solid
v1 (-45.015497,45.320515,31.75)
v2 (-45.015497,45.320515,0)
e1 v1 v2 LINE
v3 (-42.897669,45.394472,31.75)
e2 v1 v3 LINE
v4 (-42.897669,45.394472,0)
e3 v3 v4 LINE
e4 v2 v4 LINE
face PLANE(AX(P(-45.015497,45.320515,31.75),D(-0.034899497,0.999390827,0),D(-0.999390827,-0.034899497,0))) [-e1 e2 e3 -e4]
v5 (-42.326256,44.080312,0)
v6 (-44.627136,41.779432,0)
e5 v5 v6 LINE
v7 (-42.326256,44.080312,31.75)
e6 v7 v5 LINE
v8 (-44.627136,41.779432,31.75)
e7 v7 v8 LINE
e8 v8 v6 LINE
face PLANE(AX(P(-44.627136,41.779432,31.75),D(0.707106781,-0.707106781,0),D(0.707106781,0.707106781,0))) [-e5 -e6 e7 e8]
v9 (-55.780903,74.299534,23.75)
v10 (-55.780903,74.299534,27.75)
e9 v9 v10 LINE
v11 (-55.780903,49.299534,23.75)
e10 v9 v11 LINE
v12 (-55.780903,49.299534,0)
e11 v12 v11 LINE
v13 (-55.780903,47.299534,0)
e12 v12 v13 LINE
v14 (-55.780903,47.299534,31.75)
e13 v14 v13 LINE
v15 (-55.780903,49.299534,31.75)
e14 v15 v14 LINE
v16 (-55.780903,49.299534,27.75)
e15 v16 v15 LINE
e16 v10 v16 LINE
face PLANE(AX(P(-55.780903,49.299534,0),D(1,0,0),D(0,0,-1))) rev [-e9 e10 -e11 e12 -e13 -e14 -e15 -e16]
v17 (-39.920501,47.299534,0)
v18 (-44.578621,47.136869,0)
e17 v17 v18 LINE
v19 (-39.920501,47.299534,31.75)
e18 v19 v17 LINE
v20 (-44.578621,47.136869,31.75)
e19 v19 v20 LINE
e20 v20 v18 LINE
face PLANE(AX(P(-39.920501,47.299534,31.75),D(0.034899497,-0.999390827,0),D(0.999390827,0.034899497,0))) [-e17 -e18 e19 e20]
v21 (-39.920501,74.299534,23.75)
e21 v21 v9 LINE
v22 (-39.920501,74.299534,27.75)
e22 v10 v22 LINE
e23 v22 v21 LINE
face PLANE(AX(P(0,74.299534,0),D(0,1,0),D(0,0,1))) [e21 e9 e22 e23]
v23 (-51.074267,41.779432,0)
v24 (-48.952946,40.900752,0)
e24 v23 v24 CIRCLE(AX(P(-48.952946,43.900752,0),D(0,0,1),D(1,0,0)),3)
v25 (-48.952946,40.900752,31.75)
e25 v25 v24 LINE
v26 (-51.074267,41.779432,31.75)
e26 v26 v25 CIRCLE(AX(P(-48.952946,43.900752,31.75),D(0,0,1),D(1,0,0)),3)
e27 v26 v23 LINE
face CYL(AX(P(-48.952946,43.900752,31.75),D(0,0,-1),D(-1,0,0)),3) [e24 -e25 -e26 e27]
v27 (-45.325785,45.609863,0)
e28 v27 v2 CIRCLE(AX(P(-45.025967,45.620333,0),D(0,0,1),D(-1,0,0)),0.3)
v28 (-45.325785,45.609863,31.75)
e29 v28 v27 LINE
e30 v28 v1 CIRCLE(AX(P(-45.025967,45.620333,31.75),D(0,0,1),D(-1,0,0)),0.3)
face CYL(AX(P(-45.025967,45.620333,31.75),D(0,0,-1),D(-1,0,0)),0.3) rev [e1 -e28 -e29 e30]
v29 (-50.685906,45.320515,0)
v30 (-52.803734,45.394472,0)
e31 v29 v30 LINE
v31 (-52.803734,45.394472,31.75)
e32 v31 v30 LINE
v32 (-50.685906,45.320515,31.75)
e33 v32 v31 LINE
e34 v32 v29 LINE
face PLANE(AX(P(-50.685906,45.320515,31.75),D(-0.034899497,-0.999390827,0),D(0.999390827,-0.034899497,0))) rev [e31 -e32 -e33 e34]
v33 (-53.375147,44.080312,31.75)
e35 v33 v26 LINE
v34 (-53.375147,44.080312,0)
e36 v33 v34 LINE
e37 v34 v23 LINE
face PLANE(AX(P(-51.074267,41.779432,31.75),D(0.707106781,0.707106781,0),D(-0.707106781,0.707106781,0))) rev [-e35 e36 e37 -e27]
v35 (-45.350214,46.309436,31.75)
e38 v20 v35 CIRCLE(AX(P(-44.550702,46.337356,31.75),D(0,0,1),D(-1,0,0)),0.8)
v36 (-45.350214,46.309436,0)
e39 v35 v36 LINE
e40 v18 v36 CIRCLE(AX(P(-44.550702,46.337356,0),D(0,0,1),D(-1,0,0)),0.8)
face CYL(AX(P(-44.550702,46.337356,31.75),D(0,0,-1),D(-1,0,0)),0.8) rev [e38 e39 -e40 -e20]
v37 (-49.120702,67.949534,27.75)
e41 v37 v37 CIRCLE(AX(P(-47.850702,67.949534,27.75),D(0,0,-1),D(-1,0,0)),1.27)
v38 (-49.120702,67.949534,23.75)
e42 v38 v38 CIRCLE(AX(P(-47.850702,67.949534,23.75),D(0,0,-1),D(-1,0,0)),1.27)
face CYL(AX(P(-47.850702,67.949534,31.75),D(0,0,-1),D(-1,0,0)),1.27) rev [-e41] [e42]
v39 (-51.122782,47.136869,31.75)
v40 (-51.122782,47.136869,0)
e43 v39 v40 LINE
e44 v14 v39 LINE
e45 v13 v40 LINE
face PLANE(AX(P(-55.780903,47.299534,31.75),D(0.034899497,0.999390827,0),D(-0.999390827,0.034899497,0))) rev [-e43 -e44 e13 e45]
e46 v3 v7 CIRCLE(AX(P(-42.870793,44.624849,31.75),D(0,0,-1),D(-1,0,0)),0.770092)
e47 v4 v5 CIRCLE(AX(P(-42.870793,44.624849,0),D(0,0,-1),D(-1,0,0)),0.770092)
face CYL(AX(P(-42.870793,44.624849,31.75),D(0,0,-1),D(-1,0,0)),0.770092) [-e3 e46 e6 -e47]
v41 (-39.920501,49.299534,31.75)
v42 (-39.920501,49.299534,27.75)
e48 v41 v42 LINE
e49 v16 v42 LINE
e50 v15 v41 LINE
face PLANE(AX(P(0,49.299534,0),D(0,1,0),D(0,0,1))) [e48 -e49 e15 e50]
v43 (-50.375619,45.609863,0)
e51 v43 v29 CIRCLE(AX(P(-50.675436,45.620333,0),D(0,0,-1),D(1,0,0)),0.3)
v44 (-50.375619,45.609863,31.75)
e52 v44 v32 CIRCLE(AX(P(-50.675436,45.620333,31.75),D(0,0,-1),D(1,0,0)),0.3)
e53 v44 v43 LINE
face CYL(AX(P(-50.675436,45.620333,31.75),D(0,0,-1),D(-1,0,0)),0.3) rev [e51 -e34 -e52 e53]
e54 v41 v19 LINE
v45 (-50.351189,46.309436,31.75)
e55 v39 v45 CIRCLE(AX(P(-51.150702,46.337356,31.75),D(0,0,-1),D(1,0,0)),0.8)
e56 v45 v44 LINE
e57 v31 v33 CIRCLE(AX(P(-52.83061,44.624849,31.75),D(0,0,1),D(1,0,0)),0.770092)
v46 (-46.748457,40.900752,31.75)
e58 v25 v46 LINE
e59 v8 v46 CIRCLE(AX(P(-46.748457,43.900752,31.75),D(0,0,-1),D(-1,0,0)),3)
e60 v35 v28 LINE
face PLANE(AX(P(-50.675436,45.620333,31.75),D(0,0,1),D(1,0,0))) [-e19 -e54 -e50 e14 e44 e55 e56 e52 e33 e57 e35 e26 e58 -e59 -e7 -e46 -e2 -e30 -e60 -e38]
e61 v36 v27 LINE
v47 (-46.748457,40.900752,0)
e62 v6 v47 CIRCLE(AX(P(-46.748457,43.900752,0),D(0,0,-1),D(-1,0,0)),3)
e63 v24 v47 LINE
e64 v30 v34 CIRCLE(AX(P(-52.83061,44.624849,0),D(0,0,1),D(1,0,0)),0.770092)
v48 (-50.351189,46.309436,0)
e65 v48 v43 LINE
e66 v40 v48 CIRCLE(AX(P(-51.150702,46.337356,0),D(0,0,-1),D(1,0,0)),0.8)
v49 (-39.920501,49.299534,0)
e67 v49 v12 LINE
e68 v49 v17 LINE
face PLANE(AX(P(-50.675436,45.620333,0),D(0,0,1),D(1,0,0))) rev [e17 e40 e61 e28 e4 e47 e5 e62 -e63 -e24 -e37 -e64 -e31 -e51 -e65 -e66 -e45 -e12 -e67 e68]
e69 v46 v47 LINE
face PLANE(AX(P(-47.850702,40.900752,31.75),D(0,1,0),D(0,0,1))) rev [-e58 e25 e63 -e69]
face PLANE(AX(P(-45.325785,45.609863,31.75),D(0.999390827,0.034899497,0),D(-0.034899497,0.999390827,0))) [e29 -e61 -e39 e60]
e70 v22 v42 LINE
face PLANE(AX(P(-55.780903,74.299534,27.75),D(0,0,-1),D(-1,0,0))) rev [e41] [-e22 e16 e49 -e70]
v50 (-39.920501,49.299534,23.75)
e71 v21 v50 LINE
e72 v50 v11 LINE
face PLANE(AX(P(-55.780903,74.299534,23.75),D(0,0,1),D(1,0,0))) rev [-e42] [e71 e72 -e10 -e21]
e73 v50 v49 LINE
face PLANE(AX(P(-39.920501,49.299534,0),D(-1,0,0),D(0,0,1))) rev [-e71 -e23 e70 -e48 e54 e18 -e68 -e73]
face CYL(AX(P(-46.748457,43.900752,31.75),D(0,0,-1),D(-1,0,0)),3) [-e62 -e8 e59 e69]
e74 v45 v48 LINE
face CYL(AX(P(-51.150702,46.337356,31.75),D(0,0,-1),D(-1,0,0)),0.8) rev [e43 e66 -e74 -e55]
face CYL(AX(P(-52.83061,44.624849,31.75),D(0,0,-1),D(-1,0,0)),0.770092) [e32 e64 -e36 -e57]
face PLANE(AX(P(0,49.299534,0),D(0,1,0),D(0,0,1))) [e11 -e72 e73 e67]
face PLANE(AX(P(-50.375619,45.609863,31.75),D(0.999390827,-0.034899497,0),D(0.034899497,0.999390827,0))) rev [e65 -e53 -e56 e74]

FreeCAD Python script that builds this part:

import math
import FreeCAD as App
import Part
import Sketcher
Q = App.Units.Quantity


def add_polygon(sketch, points):
    """Adds a closed chain of lines whose ends are joined by coincident constraints."""
    first, n = sketch.GeometryCount, len(points)
    for a, b in zip(points, points[1:] + points[:1]):
        sketch.addGeometry(Part.LineSegment(App.Vector(*a, 0), App.Vector(*b, 0)), False)
    for i in range(n):
        sketch.addConstraint(Sketcher.Constraint("Coincident", first + i, 2, first + (i + 1) % n, 1))

doc = App.newDocument("Part")
body = doc.addObject("PartDesign::Body", "Body")

# Sketch on XY plane
sketch1 = body.newObject("Sketcher::SketchObject", "Sketch")
sketch1.AttachmentSupport = (doc.getObject("XY_Plane"), [""])
sketch1.MapMode = "FlatFace"
sketch1.addGeometry([
    Part.LineSegment(App.Vector(-50.35, 46.31, 0), App.Vector(-50.38, 45.61, 0)),  # 0
    Part.ArcOfCircle(Part.Circle(App.Vector(-50.68, 45.62, 0), App.Vector(0, 0, 1), 0.3), math.radians(-92), math.radians(-2)),  # 1
    Part.LineSegment(App.Vector(-50.69, 45.32, 0), App.Vector(-52.8, 45.39, 0)),  # 2
    Part.ArcOfCircle(Part.Circle(App.Vector(-52.83, 44.62, 0), App.Vector(0, 0, 1), 0.77), math.radians(88), math.radians(225)),  # 3
    Part.LineSegment(App.Vector(-53.38, 44.08, 0), App.Vector(-51.07, 41.78, 0)),  # 4
    Part.ArcOfCircle(Part.Circle(App.Vector(-48.95, 43.9, 0), App.Vector(0, 0, 1), 3), math.radians(-135), math.radians(-90)),  # 5
    Part.LineSegment(App.Vector(-48.95, 40.9, 0), App.Vector(-47.85, 40.9, 0)),  # 6
    Part.LineSegment(App.Vector(-47.85, 40.9, 0), App.Vector(-47.85, 47.3, 0)),  # 7
    Part.LineSegment(App.Vector(-47.85, 47.3, 0), App.Vector(-55.78, 47.3, 0)),  # 8
    Part.LineSegment(App.Vector(-55.78, 47.3, 0), App.Vector(-51.12, 47.14, 0)),  # 9
    Part.ArcOfCircle(Part.Circle(App.Vector(-51.15, 46.34, 0), App.Vector(0, 0, 1), 0.8), math.radians(-2), math.radians(88)),  # 10
], False)
sketch1.addConstraint([
    Sketcher.Constraint("Tangent", 0, 2, 1, 2),
    Sketcher.Constraint("Tangent", 1, 1, 2, 1),
    Sketcher.Constraint("Tangent", 2, 2, 3, 1),
    Sketcher.Constraint("Tangent", 3, 2, 4, 1),
    Sketcher.Constraint("Tangent", 4, 2, 5, 1),
    Sketcher.Constraint("Tangent", 5, 2, 6, 1),
    Sketcher.Constraint("Coincident", 6, 2, 7, 1),
    Sketcher.Constraint("Coincident", 7, 2, 8, 1),
    Sketcher.Constraint("Coincident", 8, 2, 9, 1),
    Sketcher.Constraint("Tangent", 9, 2, 10, 2),
    Sketcher.Constraint("Tangent", 10, 1, 0, 1),
    Sketcher.Constraint("Horizontal", 6),
    Sketcher.Constraint("Vertical", 7),
    Sketcher.Constraint("Horizontal", 8),
    Sketcher.Constraint("Perpendicular", 0, 2),
    Sketcher.Constraint("Parallel", 2, 9),
    Sketcher.Constraint("Radius", 5, Q("3 mm")),
    Sketcher.Constraint("Radius", 1, Q("0.3 mm")),
    Sketcher.Constraint("Radius", 10, Q("0.8 mm")),
    Sketcher.Constraint("Angle", 0, Q("-92 deg")),
    Sketcher.Constraint("Angle", 4, Q("-45 deg")),
    Sketcher.Constraint("Distance", 0, Q("0.7 mm")),
    Sketcher.Constraint("DistanceX", 10, 3, 7, 2, Q("3.3 mm")),
    Sketcher.Constraint("Radius", 3, Q("0.770092 mm")),
    Sketcher.Constraint("DistanceX", 8, 2, 8, 1, Q("7.930201 mm")),
    Sketcher.Constraint("DistanceY", 7, 1, 7, 2, Q("6.398782 mm")),
    Sketcher.Constraint("DistanceX", 10, 3, -1, 1, Q("51.150702 mm")),
    Sketcher.Constraint("DistanceX", 2, 2, 1, 3, Q("2.128298 mm")),
    Sketcher.Constraint("DistanceY", -1, 1, 3, 3, Q("44.624849 mm")),
])
pad1 = body.newObject("PartDesign::Pad", "Pad")
pad1.Profile = sketch1
pad1.Length = 31.75
doc.recompute()

datumplane = body.newObject("PartDesign::Plane", "DatumPlane")
datumplane.AttachmentSupport = (doc.getObject("YZ_Plane"), [""])
datumplane.MapMode = "FlatFace"
datumplane.AttachmentOffset = App.Placement(App.Vector(0, 0, -47.850702), App.Rotation())
mirrored = body.newObject("PartDesign::Mirrored", "Mirrored")
mirrored.Originals = [pad1]
mirrored.MirrorPlane = (datumplane, [""])
body.Tip = mirrored

# Sketch on XZ plane
sketch2 = body.newObject("Sketcher::SketchObject", "Sketch001")
sketch2.AttachmentSupport = (doc.getObject("XZ_Plane"), [""])
sketch2.MapMode = "FlatFace"
sketch2.AttachmentOffset = App.Placement(App.Vector(0, 0, -47.299534), App.Rotation())
add_polygon(sketch2, [(-56, 0), (-56, 32), (-40, 32), (-40, 0)])  # lines 0-3
sketch2.addConstraint([
    Sketcher.Constraint("Vertical", 0),
    Sketcher.Constraint("Horizontal", 1),
    Sketcher.Constraint("Vertical", 2),
    Sketcher.Constraint("Horizontal", 3),
    Sketcher.Constraint("PointOnObject", 2, 2, -1),
    Sketcher.Constraint("DistanceY", 0, 1, 0, 2, Q("31.75 mm")),
    Sketcher.Constraint("DistanceX", 1, 2, -1, 1, Q("39.920501 mm")),
    Sketcher.Constraint("DistanceX", 1, 1, 1, 2, Q("15.860402 mm")),
])
pad2 = body.newObject("PartDesign::Pad", "Pad001")
pad2.Profile = sketch2
pad2.Length = 2
pad2.Reversed = True

# Sketch on XZ plane
sketch3 = body.newObject("Sketcher::SketchObject", "Sketch002")
sketch3.AttachmentSupport = (doc.getObject("XZ_Plane"), [""])
sketch3.MapMode = "FlatFace"
sketch3.AttachmentOffset = App.Placement(App.Vector(0, 0, -49.299534), App.Rotation())
add_polygon(sketch3, [(-55.8, 23.8), (-55.8, 27.8), (-39.9, 27.8), (-39.9, 23.8)])  # lines 0-3
sketch3.addConstraint([
    Sketcher.Constraint("Vertical", 0),
    Sketcher.Constraint("Horizontal", 1),
    Sketcher.Constraint("Vertical", 2),
    Sketcher.Constraint("Horizontal", 3),
    Sketcher.Constraint("DistanceY", 0, 1, 0, 2, Q("4 mm")),
    Sketcher.Constraint("DistanceY", -1, 1, 0, 2, Q("27.75 mm")),
    Sketcher.Constraint("DistanceX", 1, 2, -1, 1, Q("39.920501 mm")),
    Sketcher.Constraint("DistanceX", 1, 1, 1, 2, Q("15.860402 mm")),
])
pad3 = body.newObject("PartDesign::Pad", "Pad002")
pad3.Profile = sketch3
pad3.Length = 25
pad3.Reversed = True

# Sketch on XY plane
sketch4 = body.newObject("Sketcher::SketchObject", "Sketch003")
sketch4.AttachmentSupport = (doc.getObject("XY_Plane"), [""])
sketch4.MapMode = "FlatFace"
sketch4.AttachmentOffset = App.Placement(App.Vector(0, 0, 23.75), App.Rotation())
sketch4.addGeometry(Part.Circle(App.Vector(-47.9, 67.9, 0), App.Vector(0, 0, 1), 1.3), False)
sketch4.addConstraint([
    Sketcher.Constraint("Diameter", 0, Q("2.54 mm")),
    Sketcher.Constraint("DistanceX", 0, 3, -1, 1, Q("47.850702 mm")),
    Sketcher.Constraint("DistanceY", -1, 1, 0, 3, Q("67.949534 mm")),
])
pocket1 = body.newObject("PartDesign::Pocket", "Pocket")
pocket1.Profile = sketch4
pocket1.Type = "ThroughAll"
pocket1.Reversed = True

doc.recompute()
